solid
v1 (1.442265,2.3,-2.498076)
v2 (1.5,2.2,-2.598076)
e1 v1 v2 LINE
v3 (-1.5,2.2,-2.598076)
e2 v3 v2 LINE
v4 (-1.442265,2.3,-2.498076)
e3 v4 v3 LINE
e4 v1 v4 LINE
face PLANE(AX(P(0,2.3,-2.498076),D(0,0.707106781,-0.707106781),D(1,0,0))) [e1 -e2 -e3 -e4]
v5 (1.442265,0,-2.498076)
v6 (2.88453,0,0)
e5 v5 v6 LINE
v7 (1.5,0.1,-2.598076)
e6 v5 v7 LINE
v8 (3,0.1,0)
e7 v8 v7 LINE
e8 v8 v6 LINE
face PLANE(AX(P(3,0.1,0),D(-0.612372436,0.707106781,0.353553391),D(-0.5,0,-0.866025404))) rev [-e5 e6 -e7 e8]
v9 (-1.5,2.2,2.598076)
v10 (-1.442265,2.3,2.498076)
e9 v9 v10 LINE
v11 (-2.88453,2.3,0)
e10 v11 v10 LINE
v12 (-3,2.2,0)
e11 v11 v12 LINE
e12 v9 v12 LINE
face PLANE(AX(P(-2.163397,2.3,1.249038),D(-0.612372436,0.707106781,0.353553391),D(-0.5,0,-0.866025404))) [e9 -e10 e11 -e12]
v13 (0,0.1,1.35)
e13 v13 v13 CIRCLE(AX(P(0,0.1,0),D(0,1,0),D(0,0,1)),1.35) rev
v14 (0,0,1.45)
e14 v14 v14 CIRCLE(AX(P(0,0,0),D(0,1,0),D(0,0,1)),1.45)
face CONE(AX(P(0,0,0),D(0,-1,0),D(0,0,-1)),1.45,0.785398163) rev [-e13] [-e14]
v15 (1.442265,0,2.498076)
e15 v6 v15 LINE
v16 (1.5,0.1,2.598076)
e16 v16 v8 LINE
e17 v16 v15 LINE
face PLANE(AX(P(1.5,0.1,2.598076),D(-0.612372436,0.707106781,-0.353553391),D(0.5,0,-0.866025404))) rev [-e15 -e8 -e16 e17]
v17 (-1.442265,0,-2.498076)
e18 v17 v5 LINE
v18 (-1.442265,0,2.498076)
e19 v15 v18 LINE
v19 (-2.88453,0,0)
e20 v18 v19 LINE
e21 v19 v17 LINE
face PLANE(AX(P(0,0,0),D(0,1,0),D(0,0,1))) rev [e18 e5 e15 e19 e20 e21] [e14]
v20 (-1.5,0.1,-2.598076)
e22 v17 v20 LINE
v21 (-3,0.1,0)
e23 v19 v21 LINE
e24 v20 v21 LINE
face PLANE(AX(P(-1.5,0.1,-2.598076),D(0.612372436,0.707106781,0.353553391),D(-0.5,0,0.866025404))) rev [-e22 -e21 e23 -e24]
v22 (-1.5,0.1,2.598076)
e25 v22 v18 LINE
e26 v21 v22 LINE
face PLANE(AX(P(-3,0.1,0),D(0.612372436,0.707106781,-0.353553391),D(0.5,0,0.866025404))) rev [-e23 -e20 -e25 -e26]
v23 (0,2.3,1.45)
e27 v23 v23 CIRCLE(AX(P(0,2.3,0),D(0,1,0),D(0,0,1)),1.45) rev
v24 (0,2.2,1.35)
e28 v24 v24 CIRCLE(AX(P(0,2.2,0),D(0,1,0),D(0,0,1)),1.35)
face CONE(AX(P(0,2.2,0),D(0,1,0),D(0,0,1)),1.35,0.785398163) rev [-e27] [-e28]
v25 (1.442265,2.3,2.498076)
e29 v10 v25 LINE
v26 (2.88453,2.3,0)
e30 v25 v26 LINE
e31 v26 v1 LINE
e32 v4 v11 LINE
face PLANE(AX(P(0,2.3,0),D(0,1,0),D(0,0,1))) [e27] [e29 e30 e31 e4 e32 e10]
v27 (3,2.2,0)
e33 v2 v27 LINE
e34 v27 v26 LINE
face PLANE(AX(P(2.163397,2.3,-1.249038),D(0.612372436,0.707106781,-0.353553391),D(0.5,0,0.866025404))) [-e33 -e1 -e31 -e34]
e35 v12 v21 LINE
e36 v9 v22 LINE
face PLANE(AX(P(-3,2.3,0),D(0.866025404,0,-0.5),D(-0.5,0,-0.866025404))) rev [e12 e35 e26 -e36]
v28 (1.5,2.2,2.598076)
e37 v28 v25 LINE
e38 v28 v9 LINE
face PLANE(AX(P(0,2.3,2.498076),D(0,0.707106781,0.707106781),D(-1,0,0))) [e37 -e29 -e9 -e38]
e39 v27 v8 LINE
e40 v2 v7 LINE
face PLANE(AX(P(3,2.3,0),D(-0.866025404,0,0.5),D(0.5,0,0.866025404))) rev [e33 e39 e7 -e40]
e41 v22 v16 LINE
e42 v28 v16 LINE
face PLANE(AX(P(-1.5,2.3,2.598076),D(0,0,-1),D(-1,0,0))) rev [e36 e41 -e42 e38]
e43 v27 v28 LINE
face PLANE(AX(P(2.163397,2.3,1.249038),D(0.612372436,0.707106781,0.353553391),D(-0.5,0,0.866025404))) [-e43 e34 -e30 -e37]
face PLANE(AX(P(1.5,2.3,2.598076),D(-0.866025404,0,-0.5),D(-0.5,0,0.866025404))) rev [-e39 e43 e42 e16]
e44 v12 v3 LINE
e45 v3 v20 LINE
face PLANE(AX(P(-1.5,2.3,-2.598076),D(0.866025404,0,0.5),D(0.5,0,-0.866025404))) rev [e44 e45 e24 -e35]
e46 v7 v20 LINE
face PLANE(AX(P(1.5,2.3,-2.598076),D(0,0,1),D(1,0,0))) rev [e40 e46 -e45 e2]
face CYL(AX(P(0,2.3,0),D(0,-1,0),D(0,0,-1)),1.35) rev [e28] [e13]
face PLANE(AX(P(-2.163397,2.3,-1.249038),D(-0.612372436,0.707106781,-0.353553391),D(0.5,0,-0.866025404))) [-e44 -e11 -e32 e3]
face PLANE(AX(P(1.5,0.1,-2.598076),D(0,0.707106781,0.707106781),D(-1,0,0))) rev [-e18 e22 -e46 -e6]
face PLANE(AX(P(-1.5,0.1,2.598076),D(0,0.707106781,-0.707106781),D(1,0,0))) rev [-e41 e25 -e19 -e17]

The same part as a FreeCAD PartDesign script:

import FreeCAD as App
import Part
import Sketcher
from FreeCAD import Vector
Q = App.Units.Quantity


def edges_at(feature, points):
    """Names of the edges that pass closest to the given points."""
    edges = feature.Shape.Edges
    near = lambda p: min(range(len(edges)), key=lambda i: edges[i].distToShape(Part.Vertex(*p))[0])
    return sorted({f"Edge{near(p) + 1}" for p in points})

doc = App.newDocument("Part")
body = doc.addObject("PartDesign::Body", "Body")

sketch1 = body.newObject("Sketcher::SketchObject", "Sketch")
sketch1.AttachmentSupport = (doc.getObject("XZ_Plane"), [""])
sketch1.MapMode = "FlatFace"
sketch1.addGeometry([
    Part.LineSegment(Vector(3, 0, 0), Vector(1.5, -2.6, 0)),
    Part.LineSegment(Vector(1.5, -2.6, 0), Vector(-1.5, -2.6, 0)),
    Part.LineSegment(Vector(-1.5, -2.6, 0), Vector(-3, 0, 0)),
    Part.LineSegment(Vector(-3, 0, 0), Vector(-1.5, 2.6, 0)),
    Part.LineSegment(Vector(-1.5, 2.6, 0), Vector(1.5, 2.6, 0)),
    Part.LineSegment(Vector(1.5, 2.6, 0), Vector(3, 0, 0)),
    Part.Circle(Vector(0, 0, 0), Vector(0, 0, 1), 1.4),
], False)
sketch1.addConstraint([
    Sketcher.Constraint("Coincident", 0, 2, 1, 1),
    Sketcher.Constraint("Coincident", 1, 2, 2, 1),
    Sketcher.Constraint("Coincident", 2, 2, 3, 1),
    Sketcher.Constraint("Coincident", 3, 2, 4, 1),
    Sketcher.Constraint("Coincident", 4, 2, 5, 1),
    Sketcher.Constraint("Coincident", 5, 2, 0, 1),
    Sketcher.Constraint("Horizontal", 1),
    Sketcher.Constraint("Horizontal", 4),
    Sketcher.Constraint("Coincident", 6, 3, -1, 1),
    Sketcher.Constraint("Symmetric", 0, 2, 3, 2, -1, 1),
    Sketcher.Constraint("Symmetric", 2, 2, 5, 2, -1, 1),
    Sketcher.Constraint("PointOnObject", 2, 2, -1),
    Sketcher.Constraint("Parallel", 2, 5),
    Sketcher.Constraint("Vertical", 1, 2, 3, 2),
    Sketcher.Constraint("Diameter", 6, Q("2.7 mm")),
    Sketcher.Constraint("DistanceX", 1, 2, 1, 1, Q("3 mm")),
    Sketcher.Constraint("Angle", 0, Q("-120 deg")),
    Sketcher.Constraint("Distance", 0, Q("3 mm")),
])
pad1 = body.newObject("PartDesign::Pad", "Pad")
pad1.Profile = sketch1
pad1.Length = 2.3
pad1.Reversed = True
doc.recompute()

chamfer = body.newObject("PartDesign::Chamfer", "Chamfer")
chamfer.Base = (pad1, edges_at(pad1, [
    (0, 2.3, -2.598),
    (-2.25, 2.3, -1.299),
    (-2.25, 2.3, 1.299),
    (-1.35, 0, 0),
    (-1.35, 2.3, 0),
    (0, 2.3, 2.598),
    (2.25, 2.3, 1.299),
    (0, 0, 2.598),
    (-2.25, 0, 1.299),
    (-2.25, 0, -1.299),
    (2.25, 2.3, -1.299),
    (0, 0, -2.598),
    (2.25, 0, -1.299),
    (2.25, 0, 1.299),
]))
chamfer.Size = 0.1

doc.recompute()
